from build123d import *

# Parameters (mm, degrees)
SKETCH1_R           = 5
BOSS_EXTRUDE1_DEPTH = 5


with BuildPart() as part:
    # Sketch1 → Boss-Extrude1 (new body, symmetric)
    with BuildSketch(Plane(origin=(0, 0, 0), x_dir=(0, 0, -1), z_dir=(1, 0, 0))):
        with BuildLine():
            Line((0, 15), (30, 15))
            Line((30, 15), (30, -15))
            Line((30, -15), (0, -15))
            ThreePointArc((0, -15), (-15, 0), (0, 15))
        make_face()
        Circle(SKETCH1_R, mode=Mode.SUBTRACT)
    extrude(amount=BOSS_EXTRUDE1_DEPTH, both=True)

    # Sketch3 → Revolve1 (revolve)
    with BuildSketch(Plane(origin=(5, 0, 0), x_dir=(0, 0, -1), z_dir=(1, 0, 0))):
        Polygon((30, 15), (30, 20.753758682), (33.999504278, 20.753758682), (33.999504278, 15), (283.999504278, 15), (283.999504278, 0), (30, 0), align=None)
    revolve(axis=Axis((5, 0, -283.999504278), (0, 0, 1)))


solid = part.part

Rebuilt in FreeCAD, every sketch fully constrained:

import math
import FreeCAD as App
import Part
import Sketcher
Q = App.Units.Quantity


def add_polygon(sketch, points):
    """Adds a closed chain of lines whose ends are joined by coincident constraints."""
    first, n = sketch.GeometryCount, len(points)
    for a, b in zip(points, points[1:] + points[:1]):
        sketch.addGeometry(Part.LineSegment(App.Vector(*a, 0), App.Vector(*b, 0)), False)
    for i in range(n):
        sketch.addConstraint(Sketcher.Constraint("Coincident", first + i, 2, first + (i + 1) % n, 1))

doc = App.newDocument("Part")
body = doc.addObject("PartDesign::Body", "Body")

sketch1 = body.newObject("Sketcher::SketchObject", "Sketch")
sketch1.AttachmentSupport = (doc.getObject("YZ_Plane"), [""])
sketch1.MapMode = "FlatFace"
sketch1.addGeometry([
    Part.LineSegment(App.Vector(15, -30, 0), App.Vector(15, 0, 0)),
    Part.ArcOfCircle(Part.Circle(App.Vector(0, 0, 0), App.Vector(0, 0, 1), 15), math.radians(0), math.radians(180)),
    Part.LineSegment(App.Vector(-15, 0, 0), App.Vector(-15, -30, 0)),
    Part.LineSegment(App.Vector(-15, -30, 0), App.Vector(15, -30, 0)),
    Part.Circle(App.Vector(0, 0, 0), App.Vector(0, 0, 1), 5),
], False)
sketch1.addConstraint([
    Sketcher.Constraint("Tangent", 0, 2, 1, 1),
    Sketcher.Constraint("Tangent", 1, 2, 2, 1),
    Sketcher.Constraint("Coincident", 2, 2, 3, 1),
    Sketcher.Constraint("Coincident", 3, 2, 0, 1),
    Sketcher.Constraint("Vertical", 0),
    Sketcher.Constraint("Vertical", 2),
    Sketcher.Constraint("Horizontal", 3),
    Sketcher.Constraint("Coincident", 1, 3, -1, 1),
    Sketcher.Constraint("Coincident", 4, 3, -1, 1),
    Sketcher.Constraint("Equal", 3, 0),
    Sketcher.Constraint("Diameter", 4, Q("10 mm")),
    Sketcher.Constraint("Radius", 1, Q("15 mm")),
])
pad1 = body.newObject("PartDesign::Pad", "Pad")
pad1.Profile = sketch1
pad1.Length = 10
pad1.Midplane = True

sketch2 = body.newObject("Sketcher::SketchObject", "Sketch001")
sketch2.AttachmentSupport = (doc.getObject("YZ_Plane"), [""])
sketch2.MapMode = "FlatFace"
sketch2.AttachmentOffset = App.Placement(App.Vector(0, 0, 5), App.Rotation())
add_polygon(sketch2, [(20.753759, -30), (0, -30), (0, -283.999504), (15, -283.999504), (15, -33.999504), (20.753759, -33.999504)])
sketch2.addConstraint([
    Sketcher.Constraint("Horizontal", 0),
    Sketcher.Constraint("Vertical", 1),
    Sketcher.Constraint("Horizontal", 2),
    Sketcher.Constraint("Vertical", 3),
    Sketcher.Constraint("Horizontal", 4),
    Sketcher.Constraint("Vertical", 5),
    Sketcher.Constraint("PointOnObject", 0, 2, -2),
    Sketcher.Constraint("DistanceX", 2, 1, 2, 2, Q("15 mm")),
    Sketcher.Constraint("DistanceY", 3, 1, 3, 2, Q("250 mm")),
    Sketcher.Constraint("DistanceY", 0, 2, -1, 1, Q("30 mm")),
    Sketcher.Constraint("DistanceX", 0, 2, 0, 1, Q("20.753759 mm")),
    Sketcher.Constraint("DistanceY", 1, 2, 1, 1, Q("253.999504 mm")),
])
revolution = body.newObject("PartDesign::Revolution", "Revolution")
revolution.Profile = sketch2
revolution.ReferenceAxis = (sketch2, ["V_Axis"])
revolution.Angle = 360

doc.recompute()
